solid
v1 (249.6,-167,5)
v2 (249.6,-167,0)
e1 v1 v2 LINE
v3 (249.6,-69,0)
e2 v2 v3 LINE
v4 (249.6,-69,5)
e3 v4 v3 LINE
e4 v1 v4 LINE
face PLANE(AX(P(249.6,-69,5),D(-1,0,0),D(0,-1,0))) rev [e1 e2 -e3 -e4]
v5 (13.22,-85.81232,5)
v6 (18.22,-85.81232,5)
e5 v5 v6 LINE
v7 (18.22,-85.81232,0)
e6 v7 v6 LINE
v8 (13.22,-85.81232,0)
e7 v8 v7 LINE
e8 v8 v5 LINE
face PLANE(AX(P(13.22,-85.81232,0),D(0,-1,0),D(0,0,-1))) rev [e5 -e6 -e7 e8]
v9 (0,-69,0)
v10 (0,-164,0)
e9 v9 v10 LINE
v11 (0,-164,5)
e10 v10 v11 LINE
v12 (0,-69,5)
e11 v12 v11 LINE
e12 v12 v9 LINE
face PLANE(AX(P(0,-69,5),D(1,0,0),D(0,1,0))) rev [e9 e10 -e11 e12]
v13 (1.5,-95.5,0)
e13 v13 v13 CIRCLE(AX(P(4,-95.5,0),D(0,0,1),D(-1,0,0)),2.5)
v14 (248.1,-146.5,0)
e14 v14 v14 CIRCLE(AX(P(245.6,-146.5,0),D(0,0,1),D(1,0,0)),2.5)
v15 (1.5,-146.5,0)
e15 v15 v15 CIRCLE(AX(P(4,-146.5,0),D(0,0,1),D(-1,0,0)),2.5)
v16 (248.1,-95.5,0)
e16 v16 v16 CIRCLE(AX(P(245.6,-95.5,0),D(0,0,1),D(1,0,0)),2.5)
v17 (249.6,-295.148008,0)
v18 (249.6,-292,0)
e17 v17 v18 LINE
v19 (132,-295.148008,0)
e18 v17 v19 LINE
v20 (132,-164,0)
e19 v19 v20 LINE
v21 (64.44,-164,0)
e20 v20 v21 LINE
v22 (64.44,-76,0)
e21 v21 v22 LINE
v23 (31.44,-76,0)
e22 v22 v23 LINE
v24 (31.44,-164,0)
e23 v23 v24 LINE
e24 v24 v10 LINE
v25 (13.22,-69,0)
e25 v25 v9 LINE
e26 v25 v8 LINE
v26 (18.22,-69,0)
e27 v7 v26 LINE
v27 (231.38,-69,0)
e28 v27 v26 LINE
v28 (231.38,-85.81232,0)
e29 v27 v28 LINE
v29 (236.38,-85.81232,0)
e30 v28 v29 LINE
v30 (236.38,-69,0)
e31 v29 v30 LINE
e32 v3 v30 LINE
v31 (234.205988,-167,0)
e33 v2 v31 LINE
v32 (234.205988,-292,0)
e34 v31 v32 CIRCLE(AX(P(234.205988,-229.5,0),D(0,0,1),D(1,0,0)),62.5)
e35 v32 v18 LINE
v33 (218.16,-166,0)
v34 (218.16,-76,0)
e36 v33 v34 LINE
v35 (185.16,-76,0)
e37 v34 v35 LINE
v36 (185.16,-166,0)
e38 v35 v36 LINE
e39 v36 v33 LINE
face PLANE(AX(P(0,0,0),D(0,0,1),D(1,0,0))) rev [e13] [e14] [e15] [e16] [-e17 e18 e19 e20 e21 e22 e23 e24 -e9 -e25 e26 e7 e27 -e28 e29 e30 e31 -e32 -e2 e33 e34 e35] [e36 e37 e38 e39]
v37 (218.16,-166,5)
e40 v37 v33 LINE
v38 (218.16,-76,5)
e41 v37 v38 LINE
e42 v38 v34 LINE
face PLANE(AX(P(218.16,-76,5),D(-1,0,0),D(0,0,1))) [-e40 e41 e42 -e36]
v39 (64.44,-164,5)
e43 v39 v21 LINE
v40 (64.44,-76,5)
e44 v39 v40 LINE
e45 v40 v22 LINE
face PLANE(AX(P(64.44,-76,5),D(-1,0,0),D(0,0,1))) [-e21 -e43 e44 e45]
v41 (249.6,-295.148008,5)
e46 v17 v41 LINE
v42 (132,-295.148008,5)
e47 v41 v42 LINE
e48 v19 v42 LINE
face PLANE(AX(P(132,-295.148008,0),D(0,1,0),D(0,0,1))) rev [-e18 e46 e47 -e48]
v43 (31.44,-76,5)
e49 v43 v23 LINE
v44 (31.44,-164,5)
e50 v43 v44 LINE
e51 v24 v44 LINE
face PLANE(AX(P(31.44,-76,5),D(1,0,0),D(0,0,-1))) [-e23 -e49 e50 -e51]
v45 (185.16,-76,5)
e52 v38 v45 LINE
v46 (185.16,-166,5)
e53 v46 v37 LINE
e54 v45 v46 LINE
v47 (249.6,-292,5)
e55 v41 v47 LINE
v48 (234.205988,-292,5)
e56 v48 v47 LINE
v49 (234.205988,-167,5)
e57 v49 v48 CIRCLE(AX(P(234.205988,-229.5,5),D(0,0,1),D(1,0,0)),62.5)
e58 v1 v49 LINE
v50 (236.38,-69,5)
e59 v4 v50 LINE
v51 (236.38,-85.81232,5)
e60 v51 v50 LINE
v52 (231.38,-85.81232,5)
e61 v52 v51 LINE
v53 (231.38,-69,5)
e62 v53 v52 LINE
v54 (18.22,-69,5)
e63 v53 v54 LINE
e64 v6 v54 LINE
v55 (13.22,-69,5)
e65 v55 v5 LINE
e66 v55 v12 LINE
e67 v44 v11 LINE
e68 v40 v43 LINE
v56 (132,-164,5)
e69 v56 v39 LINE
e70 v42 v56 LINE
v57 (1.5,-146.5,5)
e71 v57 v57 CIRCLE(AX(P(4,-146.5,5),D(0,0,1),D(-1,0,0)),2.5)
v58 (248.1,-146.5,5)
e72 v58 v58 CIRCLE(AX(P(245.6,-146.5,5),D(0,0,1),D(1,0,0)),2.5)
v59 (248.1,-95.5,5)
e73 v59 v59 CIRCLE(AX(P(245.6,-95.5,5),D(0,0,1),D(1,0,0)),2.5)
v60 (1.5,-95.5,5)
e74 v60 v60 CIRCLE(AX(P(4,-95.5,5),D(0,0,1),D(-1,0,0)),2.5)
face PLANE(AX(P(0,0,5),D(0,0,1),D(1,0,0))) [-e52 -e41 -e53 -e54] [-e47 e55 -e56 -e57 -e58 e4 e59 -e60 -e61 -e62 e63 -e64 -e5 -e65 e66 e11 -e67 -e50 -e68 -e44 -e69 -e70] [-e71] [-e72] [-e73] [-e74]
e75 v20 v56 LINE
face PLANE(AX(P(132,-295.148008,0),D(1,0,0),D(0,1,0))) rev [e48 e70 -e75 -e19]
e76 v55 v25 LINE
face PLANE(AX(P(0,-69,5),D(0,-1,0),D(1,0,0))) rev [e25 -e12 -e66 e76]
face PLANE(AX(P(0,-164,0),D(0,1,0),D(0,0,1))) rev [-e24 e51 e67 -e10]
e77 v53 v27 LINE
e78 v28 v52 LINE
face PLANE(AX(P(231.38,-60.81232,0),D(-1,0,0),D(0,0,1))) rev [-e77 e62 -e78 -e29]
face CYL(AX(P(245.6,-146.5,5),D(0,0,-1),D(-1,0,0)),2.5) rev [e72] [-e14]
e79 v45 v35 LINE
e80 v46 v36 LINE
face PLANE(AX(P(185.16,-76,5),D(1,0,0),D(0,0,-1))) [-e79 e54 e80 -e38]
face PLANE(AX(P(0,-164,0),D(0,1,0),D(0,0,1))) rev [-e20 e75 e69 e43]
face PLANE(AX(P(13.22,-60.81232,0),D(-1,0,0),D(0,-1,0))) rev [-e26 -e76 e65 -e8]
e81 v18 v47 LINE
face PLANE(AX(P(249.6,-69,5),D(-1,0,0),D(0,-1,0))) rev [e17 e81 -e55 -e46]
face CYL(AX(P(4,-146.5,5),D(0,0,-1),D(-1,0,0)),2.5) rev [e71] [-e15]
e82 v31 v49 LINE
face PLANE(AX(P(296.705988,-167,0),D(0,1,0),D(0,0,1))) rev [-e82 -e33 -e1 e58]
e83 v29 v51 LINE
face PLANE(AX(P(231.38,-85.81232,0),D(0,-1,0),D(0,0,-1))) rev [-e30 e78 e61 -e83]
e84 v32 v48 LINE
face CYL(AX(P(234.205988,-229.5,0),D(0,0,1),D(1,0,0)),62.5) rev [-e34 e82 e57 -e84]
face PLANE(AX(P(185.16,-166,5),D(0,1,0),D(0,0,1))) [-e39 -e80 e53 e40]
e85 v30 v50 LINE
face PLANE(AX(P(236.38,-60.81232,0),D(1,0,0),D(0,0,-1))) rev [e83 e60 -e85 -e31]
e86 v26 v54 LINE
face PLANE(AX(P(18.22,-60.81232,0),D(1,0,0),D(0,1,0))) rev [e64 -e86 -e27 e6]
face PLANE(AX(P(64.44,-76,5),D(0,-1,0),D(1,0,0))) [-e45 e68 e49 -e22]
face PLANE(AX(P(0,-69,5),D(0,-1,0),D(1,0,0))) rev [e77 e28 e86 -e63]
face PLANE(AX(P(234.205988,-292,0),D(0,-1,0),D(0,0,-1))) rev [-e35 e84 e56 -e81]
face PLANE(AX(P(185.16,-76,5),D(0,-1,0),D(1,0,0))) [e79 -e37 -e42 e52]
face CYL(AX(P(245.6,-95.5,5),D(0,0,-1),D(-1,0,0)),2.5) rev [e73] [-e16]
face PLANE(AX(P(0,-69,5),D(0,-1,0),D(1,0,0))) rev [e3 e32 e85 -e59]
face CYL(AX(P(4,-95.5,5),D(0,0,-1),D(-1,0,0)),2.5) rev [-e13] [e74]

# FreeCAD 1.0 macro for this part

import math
import FreeCAD as App
import Part
import Sketcher

V = App.Vector

doc = App.newDocument("Part")
body = doc.addObject("PartDesign::Body", "Body")

# Sketch on XY plane
sketch1 = doc.addObject("Sketcher::SketchObject", "Sketch")
body.addObject(sketch1)
sketch1.AttachmentSupport = (doc.XY_Plane, [""])
sketch1.MapMode = "FlatFace"
sketch1.addGeometry(Part.LineSegment(V(0, -69, 0), V(0, -336.4, 0)), False)
sketch1.addGeometry(Part.LineSegment(V(0, -336.4, 0), V(249.6, -336.4, 0)), False)
sketch1.addGeometry(Part.LineSegment(V(249.6, -336.4, 0), V(249.6, -69, 0)), False)
sketch1.addGeometry(Part.LineSegment(V(249.6, -69, 0), V(0, -69, 0)), False)
sketch1.addGeometry(Part.Circle(V(4, -146.5, 0), V(0, 0, 1), 2.5), False)
sketch1.addGeometry(Part.Circle(V(245.6, -146.5, 0), V(0, 0, 1), 2.5), False)
sketch1.addGeometry(Part.LineSegment(V(64.4, -166, 0), V(31.4, -166, 0)), False)
sketch1.addGeometry(Part.LineSegment(V(31.4, -166, 0), V(31.4, -76, 0)), False)
sketch1.addGeometry(Part.LineSegment(V(31.4, -76, 0), V(64.4, -76, 0)), False)
sketch1.addGeometry(Part.LineSegment(V(64.4, -76, 0), V(64.4, -166, 0)), False)
sketch1.addGeometry(Part.Circle(V(4, -95.5, 0), V(0, 0, 1), 2.5), False)
sketch1.addGeometry(Part.LineSegment(V(218.2, -166, 0), V(185.2, -166, 0)), False)
sketch1.addGeometry(Part.LineSegment(V(185.2, -166, 0), V(185.2, -76, 0)), False)
sketch1.addGeometry(Part.LineSegment(V(185.2, -76, 0), V(218.2, -76, 0)), False)
sketch1.addGeometry(Part.LineSegment(V(218.2, -76, 0), V(218.2, -166, 0)), False)
sketch1.addGeometry(Part.Circle(V(245.6, -95.5, 0), V(0, 0, 1), 2.5), False)
sketch1.addConstraint(Sketcher.Constraint("Coincident", 0, 2, 1, 1))
sketch1.addConstraint(Sketcher.Constraint("Coincident", 1, 2, 2, 1))
sketch1.addConstraint(Sketcher.Constraint("Coincident", 2, 2, 3, 1))
sketch1.addConstraint(Sketcher.Constraint("Coincident", 3, 2, 0, 1))
sketch1.addConstraint(Sketcher.Constraint("Coincident", 6, 2, 7, 1))
sketch1.addConstraint(Sketcher.Constraint("Coincident", 7, 2, 8, 1))
sketch1.addConstraint(Sketcher.Constraint("Coincident", 8, 2, 9, 1))
sketch1.addConstraint(Sketcher.Constraint("Coincident", 9, 2, 6, 1))
sketch1.addConstraint(Sketcher.Constraint("Coincident", 11, 2, 12, 1))
sketch1.addConstraint(Sketcher.Constraint("Coincident", 12, 2, 13, 1))
sketch1.addConstraint(Sketcher.Constraint("Coincident", 13, 2, 14, 1))
sketch1.addConstraint(Sketcher.Constraint("Coincident", 14, 2, 11, 1))
sketch1.addConstraint(Sketcher.Constraint("Vertical", 0))
sketch1.addConstraint(Sketcher.Constraint("Horizontal", 1))
sketch1.addConstraint(Sketcher.Constraint("Vertical", 2))
sketch1.addConstraint(Sketcher.Constraint("Horizontal", 3))
sketch1.addConstraint(Sketcher.Constraint("Horizontal", 6))
sketch1.addConstraint(Sketcher.Constraint("Vertical", 7))
sketch1.addConstraint(Sketcher.Constraint("Horizontal", 8))
sketch1.addConstraint(Sketcher.Constraint("Vertical", 9))
sketch1.addConstraint(Sketcher.Constraint("Horizontal", 11))
sketch1.addConstraint(Sketcher.Constraint("Vertical", 12))
sketch1.addConstraint(Sketcher.Constraint("Horizontal", 13))
sketch1.addConstraint(Sketcher.Constraint("Vertical", 14))
sketch1.addConstraint(Sketcher.Constraint("Equal", 4, 5))
sketch1.addConstraint(Sketcher.Constraint("Equal", 5, 10))
sketch1.addConstraint(Sketcher.Constraint("Equal", 10, 15))
sketch1.addConstraint(Sketcher.Constraint("PointOnObject", 0, 2, -2))
sketch1.addConstraint(Sketcher.Constraint("Horizontal", 4, 3, 5, 3))
sketch1.addConstraint(Sketcher.Constraint("Horizontal", 10, 3, 15, 3))
sketch1.addConstraint(Sketcher.Constraint("Horizontal", 9, 2, 11, 2))
sketch1.addConstraint(Sketcher.Constraint("Horizontal", 8, 2, 12, 2))
sketch1.addConstraint(Sketcher.Constraint("Vertical", 4, 3, 10, 3))
sketch1.addConstraint(Sketcher.Constraint("Vertical", 5, 3, 15, 3))
sketch1.addConstraint(Sketcher.Constraint("Equal", 8, 11))
sketch1.addConstraint(Sketcher.Constraint("Diameter", 4, 5.0))
sketch1.addConstraint(Sketcher.Constraint("DistanceX", 6, 2, 6, 1, 33.0))
sketch1.addConstraint(Sketcher.Constraint("DistanceY", 7, 1, 7, 2, 90.0))
sketch1.addConstraint(Sketcher.Constraint("DistanceX", 1, 1, 1, 2, 249.6))
sketch1.addConstraint(Sketcher.Constraint("DistanceY", 0, 2, 0, 1, 267.4))
sketch1.addConstraint(Sketcher.Constraint("DistanceX", -1, 1, 4, 3, 4.0))
sketch1.addConstraint(Sketcher.Constraint("DistanceY", 2, 2, -1, 1, 69.0))
sketch1.addConstraint(Sketcher.Constraint("DistanceY", 6, 2, -1, 1, 166.0))
sketch1.addConstraint(Sketcher.Constraint("DistanceY", 4, 3, 10, 3, 51.0))
sketch1.addConstraint(Sketcher.Constraint("DistanceX", 5, 3, 1, 2, 4.0))
sketch1.addConstraint(Sketcher.Constraint("DistanceY", 4, 3, -1, 1, 146.5))
sketch1.addConstraint(Sketcher.Constraint("DistanceX", -1, 1, 6, 2, 31.44))
sketch1.addConstraint(Sketcher.Constraint("DistanceX", -1, 1, 11, 2, 185.16))
pad1 = doc.addObject("PartDesign::Pad", "Pad")
body.addObject(pad1)
pad1.Profile = sketch1
pad1.Length = 5

# Sketch on XY plane
sketch2 = doc.addObject("Sketcher::SketchObject", "Sketch001")
body.addObject(sketch2)
sketch2.AttachmentSupport = (doc.XY_Plane, [""])
sketch2.MapMode = "FlatFace"
sketch2.AttachmentOffset = App.Placement(V(0, 0, 5), App.Rotation())
sketch2.addGeometry(Part.LineSegment(V(250, -295, 0), V(132, -295, 0)), False)
sketch2.addGeometry(Part.LineSegment(V(132, -295, 0), V(132, -164, 0)), False)
sketch2.addGeometry(Part.LineSegment(V(132, -164, 0), V(0, -164, 0)), False)
sketch2.addGeometry(Part.LineSegment(V(0, -164, 0), V(0, -336, 0)), False)
sketch2.addGeometry(Part.LineSegment(V(0, -336, 0), V(250, -336, 0)), False)
sketch2.addGeometry(Part.LineSegment(V(250, -336, 0), V(250, -295, 0)), False)
sketch2.addGeometry(Part.LineSegment(V(234, -292, 0), V(297, -292, 0)), False)
sketch2.addGeometry(Part.LineSegment(V(297, -292, 0), V(297, -167, 0)), False)
sketch2.addGeometry(Part.LineSegment(V(297, -167, 0), V(234, -167, 0)), False)
sketch2.addGeometry(Part.ArcOfCircle(Part.Circle(V(234, -230, 0), V(0, 0, 1), 62), math.radians(90), math.radians(270)), False)
sketch2.addConstraint(Sketcher.Constraint("Coincident", 0, 2, 1, 1))
sketch2.addConstraint(Sketcher.Constraint("Coincident", 1, 2, 2, 1))
sketch2.addConstraint(Sketcher.Constraint("Coincident", 2, 2, 3, 1))
sketch2.addConstraint(Sketcher.Constraint("Coincident", 3, 2, 4, 1))
sketch2.addConstraint(Sketcher.Constraint("Coincident", 4, 2, 5, 1))
sketch2.addConstraint(Sketcher.Constraint("Coincident", 5, 2, 0, 1))
sketch2.addConstraint(Sketcher.Constraint("Coincident", 6, 2, 7, 1))
sketch2.addConstraint(Sketcher.Constraint("Coincident", 7, 2, 8, 1))
sketch2.addConstraint(Sketcher.Constraint("Tangent", 8, 2, 9, 1))
sketch2.addConstraint(Sketcher.Constraint("Tangent", 9, 2, 6, 1))
sketch2.addConstraint(Sketcher.Constraint("Horizontal", 0))
sketch2.addConstraint(Sketcher.Constraint("Vertical", 1))
sketch2.addConstraint(Sketcher.Constraint("Horizontal", 2))
sketch2.addConstraint(Sketcher.Constraint("Vertical", 3))
sketch2.addConstraint(Sketcher.Constraint("Horizontal", 4))
sketch2.addConstraint(Sketcher.Constraint("Vertical", 5))
sketch2.addConstraint(Sketcher.Constraint("Horizontal", 6))
sketch2.addConstraint(Sketcher.Constraint("Vertical", 7))
sketch2.addConstraint(Sketcher.Constraint("Horizontal", 8))
sketch2.addConstraint(Sketcher.Constraint("PointOnObject", 2, 2, -2))
sketch2.addConstraint(Sketcher.Constraint("Radius", 9, 62.5))
sketch2.addConstraint(Sketcher.Constraint("DistanceX", 2, 2, 2, 1, 132.0))
sketch2.addConstraint(Sketcher.Constraint("DistanceX", 0, 2, 0, 1, 117.6))
sketch2.addConstraint(Sketcher.Constraint("DistanceX", 6, 1, 6, 2, 62.5))
sketch2.addConstraint(Sketcher.Constraint("DistanceY", 3, 2, 3, 1, 172.4))
sketch2.addConstraint(Sketcher.Constraint("DistanceY", 1, 2, -1, 1, 164.0))
sketch2.addConstraint(Sketcher.Constraint("DistanceY", 6, 2, -1, 1, 292.0))
sketch2.addConstraint(Sketcher.Constraint("DistanceY", 1, 1, 1, 2, 131.148008))
sketch2.addConstraint(Sketcher.Constraint("DistanceX", -1, 1, 9, 3, 234.205988))
pocket1 = doc.addObject("PartDesign::Pocket", "Pocket")
body.addObject(pocket1)
pocket1.Profile = sketch2
pocket1.Type = "ThroughAll"

# Sketch on XY plane
sketch3 = doc.addObject("Sketcher::SketchObject", "Sketch002")
body.addObject(sketch3)
sketch3.AttachmentSupport = (doc.XY_Plane, [""])
sketch3.MapMode = "FlatFace"
sketch3.AttachmentOffset = App.Placement(V(0, 0, 5), App.Rotation())
sketch3.addGeometry(Part.LineSegment(V(13.2, -20.8, 0), V(13.2, -40.8, 0)), False)
sketch3.addGeometry(Part.LineSegment(V(13.2, -40.8, 0), V(18.2, -40.8, 0)), False)
sketch3.addGeometry(Part.LineSegment(V(18.2, -40.8, 0), V(18.2, -20.8, 0)), False)
sketch3.addGeometry(Part.LineSegment(V(18.2, -20.8, 0), V(13.2, -20.8, 0)), False)
sketch3.addGeometry(Part.LineSegment(V(231.4, -20.8, 0), V(231.4, -40.8, 0)), False)
sketch3.addGeometry(Part.LineSegment(V(231.4, -40.8, 0), V(236.4, -40.8, 0)), False)
sketch3.addGeometry(Part.LineSegment(V(236.4, -40.8, 0), V(236.4, -20.8, 0)), False)
sketch3.addGeometry(Part.LineSegment(V(236.4, -20.8, 0), V(231.4, -20.8, 0)), False)
sketch3.addGeometry(Part.LineSegment(V(13.2, -60.8, 0), V(13.2, -85.8, 0)), False)
sketch3.addGeometry(Part.LineSegment(V(13.2, -85.8, 0), V(18.2, -85.8, 0)), False)
sketch3.addGeometry(Part.LineSegment(V(18.2, -85.8, 0), V(18.2, -60.8, 0)), False)
sketch3.addGeometry(Part.LineSegment(V(18.2, -60.8, 0), V(13.2, -60.8, 0)), False)
sketch3.addGeometry(Part.LineSegment(V(231.4, -60.8, 0), V(231.4, -85.8, 0)), False)
sketch3.addGeometry(Part.LineSegment(V(231.4, -85.8, 0), V(236.4, -85.8, 0)), False)
sketch3.addGeometry(Part.LineSegment(V(236.4, -85.8, 0), V(236.4, -60.8, 0)), False)
sketch3.addGeometry(Part.LineSegment(V(236.4, -60.8, 0), V(231.4, -60.8, 0)), False)
sketch3.addConstraint(Sketcher.Constraint("Coincident", 0, 2, 1, 1))
sketch3.addConstraint(Sketcher.Constraint("Coincident", 1, 2, 2, 1))
sketch3.addConstraint(Sketcher.Constraint("Coincident", 2, 2, 3, 1))
sketch3.addConstraint(Sketcher.Constraint("Coincident", 3, 2, 0, 1))
sketch3.addConstraint(Sketcher.Constraint("Coincident", 4, 2, 5, 1))
sketch3.addConstraint(Sketcher.Constraint("Coincident", 5, 2, 6, 1))
sketch3.addConstraint(Sketcher.Constraint("Coincident", 6, 2, 7, 1))
sketch3.addConstraint(Sketcher.Constraint("Coincident", 7, 2, 4, 1))
sketch3.addConstraint(Sketcher.Constraint("Coincident", 8, 2, 9, 1))
sketch3.addConstraint(Sketcher.Constraint("Coincident", 9, 2, 10, 1))
sketch3.addConstraint(Sketcher.Constraint("Coincident", 10, 2, 11, 1))
sketch3.addConstraint(Sketcher.Constraint("Coincident", 11, 2, 8, 1))
sketch3.addConstraint(Sketcher.Constraint("Coincident", 12, 2, 13, 1))
sketch3.addConstraint(Sketcher.Constraint("Coincident", 13, 2, 14, 1))
sketch3.addConstraint(Sketcher.Constraint("Coincident", 14, 2, 15, 1))
sketch3.addConstraint(Sketcher.Constraint("Coincident", 15, 2, 12, 1))
sketch3.addConstraint(Sketcher.Constraint("Vertical", 0))
sketch3.addConstraint(Sketcher.Constraint("Horizontal", 1))
sketch3.addConstraint(Sketcher.Constraint("Vertical", 2))
sketch3.addConstraint(Sketcher.Constraint("Horizontal", 3))
sketch3.addConstraint(Sketcher.Constraint("Vertical", 4))
sketch3.addConstraint(Sketcher.Constraint("Horizontal", 5))
sketch3.addConstraint(Sketcher.Constraint("Vertical", 6))
sketch3.addConstraint(Sketcher.Constraint("Horizontal", 7))
sketch3.addConstraint(Sketcher.Constraint("Vertical", 8))
sketch3.addConstraint(Sketcher.Constraint("Horizontal", 9))
sketch3.addConstraint(Sketcher.Constraint("Vertical", 10))
sketch3.addConstraint(Sketcher.Constraint("Horizontal", 11))
sketch3.addConstraint(Sketcher.Constraint("Vertical", 12))
sketch3.addConstraint(Sketcher.Constraint("Horizontal", 13))
sketch3.addConstraint(Sketcher.Constraint("Vertical", 14))
sketch3.addConstraint(Sketcher.Constraint("Horizontal", 15))
sketch3.addConstraint(Sketcher.Constraint("Horizontal", 1, 2, 4, 2))
sketch3.addConstraint(Sketcher.Constraint("Horizontal", 3, 2, 6, 2))
sketch3.addConstraint(Sketcher.Constraint("Horizontal", 9, 2, 12, 2))
sketch3.addConstraint(Sketcher.Constraint("Horizontal", 11, 2, 14, 2))
sketch3.addConstraint(Sketcher.Constraint("Vertical", 3, 2, 8, 2))
sketch3.addConstraint(Sketcher.Constraint("Vertical", 2, 2, 9, 2))
sketch3.addConstraint(Sketcher.Constraint("Vertical", 7, 2, 12, 2))
sketch3.addConstraint(Sketcher.Constraint("Vertical", 6, 2, 13, 2))
sketch3.addConstraint(Sketcher.Constraint("Equal", 3, 5))
sketch3.addConstraint(Sketcher.Constraint("DistanceX", 1, 1, 1, 2, 5.0))
sketch3.addConstraint(Sketcher.Constraint("DistanceY", 0, 2, 0, 1, 20.0))
sketch3.addConstraint(Sketcher.Constraint("DistanceY", 8, 2, 8, 1, 25.0))
sketch3.addConstraint(Sketcher.Constraint("DistanceY", 8, 2, 0, 2, 45.0))
sketch3.addConstraint(Sketcher.Constraint("DistanceX", -1, 1, 0, 2, 13.22))
sketch3.addConstraint(Sketcher.Constraint("DistanceX", -1, 1, 4, 2, 231.38))
sketch3.addConstraint(Sketcher.Constraint("DistanceY", 0, 2, -1, 1, 40.81232))
pocket2 = doc.addObject("PartDesign::Pocket", "Pocket001")
body.addObject(pocket2)
pocket2.Profile = sketch3
pocket2.Type = "ThroughAll"

doc.recompute()
